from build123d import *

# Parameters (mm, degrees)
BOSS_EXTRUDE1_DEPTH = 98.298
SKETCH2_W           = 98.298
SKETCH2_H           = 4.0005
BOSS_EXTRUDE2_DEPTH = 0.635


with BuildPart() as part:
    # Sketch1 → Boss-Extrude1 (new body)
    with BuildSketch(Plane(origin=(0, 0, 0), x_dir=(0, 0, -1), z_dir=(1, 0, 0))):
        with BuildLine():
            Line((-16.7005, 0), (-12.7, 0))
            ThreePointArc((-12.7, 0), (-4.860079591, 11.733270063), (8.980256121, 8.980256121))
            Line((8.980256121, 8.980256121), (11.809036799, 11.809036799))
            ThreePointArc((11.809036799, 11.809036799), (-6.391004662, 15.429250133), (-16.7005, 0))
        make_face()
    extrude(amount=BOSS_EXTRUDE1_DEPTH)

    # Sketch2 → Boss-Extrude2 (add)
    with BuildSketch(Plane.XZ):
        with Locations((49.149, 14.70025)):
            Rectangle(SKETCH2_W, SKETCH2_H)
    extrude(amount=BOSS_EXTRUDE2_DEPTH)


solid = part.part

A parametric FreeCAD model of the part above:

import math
import FreeCAD as App
import Part
import Sketcher
from FreeCAD import Vector
Q = App.Units.Quantity

doc = App.newDocument("Part")
body = doc.addObject("PartDesign::Body", "Body")

# Sketch on YZ plane
sketch1 = body.newObject("Sketcher::SketchObject", "Sketch")
sketch1.AttachmentSupport = (doc.getObject("YZ_Plane"), [""])
sketch1.MapMode = "FlatFace"
sketch1.addGeometry(Part.LineSegment(Vector(0, 16.7, 0), Vector(0, 12.7, 0)), False)
sketch1.addGeometry(Part.ArcOfCircle(Part.Circle(Vector(0, 0, 0), Vector(0, 0, 1), 12.7), math.radians(-45), math.radians(90)), False)
sketch1.addGeometry(Part.LineSegment(Vector(9, -9, 0), Vector(11.8, -11.8, 0)), False)
sketch1.addGeometry(Part.ArcOfCircle(Part.Circle(Vector(0, 0, 0), Vector(0, 0, 1), 16.7), math.radians(-45), math.radians(90)), False)
sketch1.addConstraint(Sketcher.Constraint("Coincident", 0, 2, 1, 2))
sketch1.addConstraint(Sketcher.Constraint("Coincident", 1, 1, 2, 1))
sketch1.addConstraint(Sketcher.Constraint("Coincident", 2, 2, 3, 1))
sketch1.addConstraint(Sketcher.Constraint("Coincident", 3, 2, 0, 1))
sketch1.addConstraint(Sketcher.Constraint("Vertical", 0))
sketch1.addConstraint(Sketcher.Constraint("Coincident", 1, 3, -1, 1))
sketch1.addConstraint(Sketcher.Constraint("Coincident", 3, 3, -1, 1))
sketch1.addConstraint(Sketcher.Constraint("PointOnObject", 0, 2, -2))
sketch1.addConstraint(Sketcher.Constraint("Radius", 1, Q("0.5 in")))
sketch1.addConstraint(Sketcher.Constraint("Angle", 2, Q("-45 deg")))
sketch1.addConstraint(Sketcher.Constraint("Radius", 3, Q("0.6575 in")))
sketch1.addConstraint(Sketcher.Constraint("DistanceX", -1, 1, 1, 1, 8.980256))
pad1 = body.newObject("PartDesign::Pad", "Pad")
pad1.Profile = sketch1
pad1.Length = Q("3.87 in")

# Sketch on XZ plane
sketch2 = body.newObject("Sketcher::SketchObject", "Sketch001")
sketch2.AttachmentSupport = (doc.getObject("XZ_Plane"), [""])
sketch2.MapMode = "FlatFace"
sketch2.addGeometry(Part.LineSegment(Vector(0, 16.7, 0), Vector(0, 12.7, 0)), False)
sketch2.addGeometry(Part.LineSegment(Vector(0, 12.7, 0), Vector(98.3, 12.7, 0)), False)
sketch2.addGeometry(Part.LineSegment(Vector(98.3, 12.7, 0), Vector(98.3, 16.7, 0)), False)
sketch2.addGeometry(Part.LineSegment(Vector(98.3, 16.7, 0), Vector(0, 16.7, 0)), False)
sketch2.addConstraint(Sketcher.Constraint("Coincident", 0, 2, 1, 1))
sketch2.addConstraint(Sketcher.Constraint("Coincident", 1, 2, 2, 1))
sketch2.addConstraint(Sketcher.Constraint("Coincident", 2, 2, 3, 1))
sketch2.addConstraint(Sketcher.Constraint("Coincident", 3, 2, 0, 1))
sketch2.addConstraint(Sketcher.Constraint("Vertical", 0))
sketch2.addConstraint(Sketcher.Constraint("Horizontal", 1))
sketch2.addConstraint(Sketcher.Constraint("Vertical", 2))
sketch2.addConstraint(Sketcher.Constraint("Horizontal", 3))
sketch2.addConstraint(Sketcher.Constraint("PointOnObject", 0, 2, -2))
sketch2.addConstraint(Sketcher.Constraint("DistanceX", 1, 1, 1, 2, Q("3.87 in")))
sketch2.addConstraint(Sketcher.Constraint("DistanceY", -1, 1, 0, 2, Q("0.5 in")))
sketch2.addConstraint(Sketcher.Constraint("DistanceY", 0, 2, 0, 1, Q("0.1575 in")))
pad2 = body.newObject("PartDesign::Pad", "Pad001")
pad2.Profile = sketch2
pad2.Length = Q("0.025 in")

doc.recompute()
